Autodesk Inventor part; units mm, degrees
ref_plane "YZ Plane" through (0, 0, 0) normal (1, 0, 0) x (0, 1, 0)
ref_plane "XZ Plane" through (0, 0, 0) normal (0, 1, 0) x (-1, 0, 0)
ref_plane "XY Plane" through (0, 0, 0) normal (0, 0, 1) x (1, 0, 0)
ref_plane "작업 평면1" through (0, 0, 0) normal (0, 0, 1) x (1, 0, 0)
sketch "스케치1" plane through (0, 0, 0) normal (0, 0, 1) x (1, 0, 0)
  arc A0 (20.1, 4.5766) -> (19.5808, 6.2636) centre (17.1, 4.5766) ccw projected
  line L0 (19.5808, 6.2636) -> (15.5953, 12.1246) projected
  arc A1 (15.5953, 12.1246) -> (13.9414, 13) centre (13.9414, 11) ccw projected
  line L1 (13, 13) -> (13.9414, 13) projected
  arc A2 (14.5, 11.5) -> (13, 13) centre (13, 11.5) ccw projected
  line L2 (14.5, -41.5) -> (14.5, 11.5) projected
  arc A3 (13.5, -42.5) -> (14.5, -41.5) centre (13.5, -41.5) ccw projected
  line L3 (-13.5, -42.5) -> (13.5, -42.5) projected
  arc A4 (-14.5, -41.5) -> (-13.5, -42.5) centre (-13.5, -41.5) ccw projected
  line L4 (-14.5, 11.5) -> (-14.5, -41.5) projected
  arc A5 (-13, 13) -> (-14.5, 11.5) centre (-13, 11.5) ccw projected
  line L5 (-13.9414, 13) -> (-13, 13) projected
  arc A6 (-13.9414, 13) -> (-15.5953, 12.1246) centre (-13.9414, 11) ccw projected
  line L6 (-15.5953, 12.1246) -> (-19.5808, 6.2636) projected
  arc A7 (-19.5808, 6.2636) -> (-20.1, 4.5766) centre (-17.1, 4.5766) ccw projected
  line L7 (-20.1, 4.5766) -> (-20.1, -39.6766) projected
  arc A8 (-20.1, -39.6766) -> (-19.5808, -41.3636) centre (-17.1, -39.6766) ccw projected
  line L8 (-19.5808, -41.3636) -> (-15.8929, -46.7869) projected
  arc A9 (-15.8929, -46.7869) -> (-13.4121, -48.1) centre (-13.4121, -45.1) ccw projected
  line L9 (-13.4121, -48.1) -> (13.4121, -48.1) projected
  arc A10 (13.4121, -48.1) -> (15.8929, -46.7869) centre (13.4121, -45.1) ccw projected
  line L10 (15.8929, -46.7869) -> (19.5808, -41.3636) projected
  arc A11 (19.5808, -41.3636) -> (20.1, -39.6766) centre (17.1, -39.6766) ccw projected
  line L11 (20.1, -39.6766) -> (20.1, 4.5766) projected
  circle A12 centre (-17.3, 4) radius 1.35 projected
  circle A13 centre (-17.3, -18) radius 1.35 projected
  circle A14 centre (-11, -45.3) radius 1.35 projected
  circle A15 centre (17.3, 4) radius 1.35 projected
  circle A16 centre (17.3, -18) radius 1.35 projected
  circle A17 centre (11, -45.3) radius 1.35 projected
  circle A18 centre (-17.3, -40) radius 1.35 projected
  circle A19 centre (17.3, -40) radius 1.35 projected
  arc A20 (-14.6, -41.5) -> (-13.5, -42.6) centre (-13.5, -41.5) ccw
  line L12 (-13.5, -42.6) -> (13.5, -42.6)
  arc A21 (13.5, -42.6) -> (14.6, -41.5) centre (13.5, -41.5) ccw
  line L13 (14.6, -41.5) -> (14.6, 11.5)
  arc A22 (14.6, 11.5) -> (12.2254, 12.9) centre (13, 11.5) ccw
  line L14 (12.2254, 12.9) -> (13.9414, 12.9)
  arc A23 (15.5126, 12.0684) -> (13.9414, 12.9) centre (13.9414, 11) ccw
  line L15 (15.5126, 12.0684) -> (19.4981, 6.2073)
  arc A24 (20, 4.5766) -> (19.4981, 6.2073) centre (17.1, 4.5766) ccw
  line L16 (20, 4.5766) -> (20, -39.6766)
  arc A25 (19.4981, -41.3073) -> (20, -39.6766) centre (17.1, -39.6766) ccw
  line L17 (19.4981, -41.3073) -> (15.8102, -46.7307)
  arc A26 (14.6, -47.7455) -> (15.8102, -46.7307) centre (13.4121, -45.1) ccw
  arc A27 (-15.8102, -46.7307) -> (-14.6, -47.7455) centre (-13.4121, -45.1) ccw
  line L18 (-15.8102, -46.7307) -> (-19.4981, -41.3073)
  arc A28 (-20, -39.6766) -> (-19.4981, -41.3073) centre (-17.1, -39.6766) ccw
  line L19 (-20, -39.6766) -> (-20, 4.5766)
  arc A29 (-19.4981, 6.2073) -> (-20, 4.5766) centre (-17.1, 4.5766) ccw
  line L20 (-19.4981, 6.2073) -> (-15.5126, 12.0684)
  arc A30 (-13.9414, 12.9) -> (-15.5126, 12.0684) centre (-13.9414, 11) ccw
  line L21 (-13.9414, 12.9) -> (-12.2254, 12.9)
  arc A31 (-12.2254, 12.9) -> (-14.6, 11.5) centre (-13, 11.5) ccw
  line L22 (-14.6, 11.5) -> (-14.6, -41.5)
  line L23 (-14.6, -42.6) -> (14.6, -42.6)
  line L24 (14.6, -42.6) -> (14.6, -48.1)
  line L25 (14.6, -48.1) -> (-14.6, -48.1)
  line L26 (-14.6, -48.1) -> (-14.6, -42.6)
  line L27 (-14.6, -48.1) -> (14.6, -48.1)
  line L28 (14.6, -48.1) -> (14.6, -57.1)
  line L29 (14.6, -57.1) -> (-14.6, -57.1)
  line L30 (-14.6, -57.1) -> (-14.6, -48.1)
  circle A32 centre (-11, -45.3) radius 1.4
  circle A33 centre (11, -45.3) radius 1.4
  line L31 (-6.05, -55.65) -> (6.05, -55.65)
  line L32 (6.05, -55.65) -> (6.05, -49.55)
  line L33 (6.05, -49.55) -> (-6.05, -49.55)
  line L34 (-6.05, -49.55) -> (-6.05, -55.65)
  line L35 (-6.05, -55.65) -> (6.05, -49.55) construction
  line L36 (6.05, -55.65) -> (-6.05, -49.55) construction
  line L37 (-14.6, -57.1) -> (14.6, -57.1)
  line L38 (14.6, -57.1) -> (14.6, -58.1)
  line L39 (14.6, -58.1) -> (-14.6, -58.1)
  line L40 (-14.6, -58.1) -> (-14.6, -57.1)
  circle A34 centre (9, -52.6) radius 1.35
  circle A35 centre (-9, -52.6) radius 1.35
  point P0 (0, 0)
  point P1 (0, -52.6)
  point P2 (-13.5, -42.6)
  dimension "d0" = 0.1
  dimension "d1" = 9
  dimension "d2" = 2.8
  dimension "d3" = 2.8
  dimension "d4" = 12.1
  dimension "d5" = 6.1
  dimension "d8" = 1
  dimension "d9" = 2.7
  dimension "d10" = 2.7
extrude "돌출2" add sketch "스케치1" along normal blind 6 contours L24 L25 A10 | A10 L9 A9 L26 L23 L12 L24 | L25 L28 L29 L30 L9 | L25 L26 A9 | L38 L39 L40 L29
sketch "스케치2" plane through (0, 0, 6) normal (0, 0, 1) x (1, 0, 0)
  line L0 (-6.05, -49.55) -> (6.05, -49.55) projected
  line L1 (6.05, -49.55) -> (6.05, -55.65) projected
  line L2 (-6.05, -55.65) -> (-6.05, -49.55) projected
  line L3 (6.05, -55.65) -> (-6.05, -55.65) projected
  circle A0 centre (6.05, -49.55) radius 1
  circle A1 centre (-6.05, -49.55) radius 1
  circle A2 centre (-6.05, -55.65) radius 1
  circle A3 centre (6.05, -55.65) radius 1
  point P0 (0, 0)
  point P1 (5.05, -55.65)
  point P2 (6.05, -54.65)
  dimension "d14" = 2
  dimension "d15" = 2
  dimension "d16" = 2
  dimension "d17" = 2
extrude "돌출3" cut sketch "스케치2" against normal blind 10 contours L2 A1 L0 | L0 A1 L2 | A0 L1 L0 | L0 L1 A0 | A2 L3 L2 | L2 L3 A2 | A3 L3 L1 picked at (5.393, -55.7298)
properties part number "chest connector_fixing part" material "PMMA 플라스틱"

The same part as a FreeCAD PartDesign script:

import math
import FreeCAD as App
import Part
import Sketcher


def add_polygon(sketch, points):
    """Adds a closed chain of lines whose ends are joined by coincident constraints."""
    first, n = sketch.GeometryCount, len(points)
    for a, b in zip(points, points[1:] + points[:1]):
        sketch.addGeometry(Part.LineSegment(App.Vector(*a, 0), App.Vector(*b, 0)), False)
    for i in range(n):
        sketch.addConstraint(Sketcher.Constraint("Coincident", first + i, 2, first + (i + 1) % n, 1))

doc = App.newDocument("Part")
body = doc.addObject("PartDesign::Body", "Body")

sketch1 = doc.addObject("Sketcher::SketchObject", "Sketch")
body.addObject(sketch1)
sketch1.AttachmentSupport = (doc.XY_Plane, [""])
sketch1.MapMode = "FlatFace"
add_polygon(sketch1, [(14.6, -42.6), (-14.6, -42.6), (-14.6, -58.1), (14.6, -58.1)])
sketch1.addGeometry(Part.Circle(App.Vector(9, -52.6, 0), App.Vector(0, 0, 1), 1.35), False)
sketch1.addGeometry(Part.Circle(App.Vector(-9, -52.6, 0), App.Vector(0, 0, 1), 1.35), False)
add_polygon(sketch1, [(6.05, -55.65), (-6.05, -55.65), (-6.05, -49.55), (6.05, -49.55)])
sketch1.addGeometry(Part.Circle(App.Vector(11, -45.3, 0), App.Vector(0, 0, 1), 1.4), False)
sketch1.addGeometry(Part.Circle(App.Vector(-11, -45.3, 0), App.Vector(0, 0, 1), 1.4), False)
sketch1.addConstraint(Sketcher.Constraint("Horizontal", 0))
sketch1.addConstraint(Sketcher.Constraint("Vertical", 1))
sketch1.addConstraint(Sketcher.Constraint("Horizontal", 2))
sketch1.addConstraint(Sketcher.Constraint("Vertical", 3))
sketch1.addConstraint(Sketcher.Constraint("Horizontal", 6))
sketch1.addConstraint(Sketcher.Constraint("Vertical", 7))
sketch1.addConstraint(Sketcher.Constraint("Horizontal", 8))
sketch1.addConstraint(Sketcher.Constraint("Vertical", 9))
sketch1.addConstraint(Sketcher.Constraint("Equal", 4, 5))
sketch1.addConstraint(Sketcher.Constraint("Equal", 10, 11))
sketch1.addConstraint(Sketcher.Constraint("Symmetric", 4, 3, 5, 3, -2))
sketch1.addConstraint(Sketcher.Constraint("Symmetric", 10, 3, 11, 3, -2))
sketch1.addConstraint(Sketcher.Constraint("Diameter", 4, 2.7))
sketch1.addConstraint(Sketcher.Constraint("Diameter", 10, 2.8))
sketch1.addConstraint(Sketcher.Constraint("DistanceX", 6, 2, 6, 1, 12.1))
sketch1.addConstraint(Sketcher.Constraint("DistanceY", 7, 1, 7, 2, 6.1))
sketch1.addConstraint(Sketcher.Constraint("DistanceX", -1, 1, 4, 3, 9.0))
sketch1.addConstraint(Sketcher.Constraint("DistanceY", 11, 3, 0, 2, 2.7))
sketch1.addConstraint(Sketcher.Constraint("DistanceX", 0, 2, 0, 1, 29.2))
sketch1.addConstraint(Sketcher.Constraint("DistanceY", 1, 2, 1, 1, 15.5))
sketch1.addConstraint(Sketcher.Constraint("DistanceX", -1, 1, 10, 3, 11.0))
sketch1.addConstraint(Sketcher.Constraint("DistanceY", 5, 3, 0, 2, 10.0))
sketch1.addConstraint(Sketcher.Constraint("DistanceY", 4, 3, -1, 1, 52.6))
sketch1.addConstraint(Sketcher.Constraint("DistanceX", 0, 2, -1, 1, 14.6))
sketch1.addConstraint(Sketcher.Constraint("DistanceX", 6, 2, -1, 1, 6.05))
sketch1.addConstraint(Sketcher.Constraint("DistanceY", 6, 2, -1, 1, 55.65))
pad1 = doc.addObject("PartDesign::Pad", "Pad")
body.addObject(pad1)
pad1.Profile = sketch1
pad1.Length = 6

sketch2 = doc.addObject("Sketcher::SketchObject", "Sketch001")
body.addObject(sketch2)
sketch2.AttachmentSupport = (doc.XY_Plane, [""])
sketch2.MapMode = "FlatFace"
sketch2.AttachmentOffset = App.Placement(App.Vector(0, 0, 6), App.Rotation())
sketch2.addGeometry(Part.Circle(App.Vector(-6.05, -49.55, 0), App.Vector(0, 0, 1), 1), False)
sketch2.addGeometry(Part.Circle(App.Vector(6.05, -49.55, 0), App.Vector(0, 0, 1), 1), False)
sketch2.addGeometry(Part.Circle(App.Vector(-6.05, -55.65, 0), App.Vector(0, 0, 1), 1), False)
sketch2.addGeometry(Part.ArcOfCircle(Part.Circle(App.Vector(6.05, -55.65, 0), App.Vector(0, 0, 1), 1), math.radians(180), math.radians(450)), False)
sketch2.addGeometry(Part.LineSegment(App.Vector(6.05, -54.65, 0), App.Vector(6.05, -55.65, 0)), False)
sketch2.addGeometry(Part.LineSegment(App.Vector(6.05, -55.65, 0), App.Vector(5.05, -55.65, 0)), False)
sketch2.addConstraint(Sketcher.Constraint("Coincident", 3, 2, 4, 1))
sketch2.addConstraint(Sketcher.Constraint("Coincident", 4, 2, 5, 1))
sketch2.addConstraint(Sketcher.Constraint("Coincident", 5, 2, 3, 1))
sketch2.addConstraint(Sketcher.Constraint("Vertical", 4))
sketch2.addConstraint(Sketcher.Constraint("Horizontal", 5))
sketch2.addConstraint(Sketcher.Constraint("Coincident", 4, 2, 3, 3))
sketch2.addConstraint(Sketcher.Constraint("Equal", 0, 1))
sketch2.addConstraint(Sketcher.Constraint("Equal", 1, 2))
sketch2.addConstraint(Sketcher.Constraint("Equal", 2, 3))
sketch2.addConstraint(Sketcher.Constraint("Symmetric", 0, 3, 1, 3, -2))
sketch2.addConstraint(Sketcher.Constraint("Symmetric", 2, 3, 3, 3, -2))
sketch2.addConstraint(Sketcher.Constraint("Vertical", 0, 3, 2, 3))
sketch2.addConstraint(Sketcher.Constraint("Diameter", 0, 2.0))
sketch2.addConstraint(Sketcher.Constraint("DistanceX", 0, 3, 1, 3, 12.1))
sketch2.addConstraint(Sketcher.Constraint("DistanceY", 2, 3, 0, 3, 6.1))
sketch2.addConstraint(Sketcher.Constraint("DistanceY", 0, 3, -1, 1, 49.55))
pocket1 = doc.addObject("PartDesign::Pocket", "Pocket")
body.addObject(pocket1)
pocket1.Profile = sketch2
pocket1.Length = 10

doc.recompute()
